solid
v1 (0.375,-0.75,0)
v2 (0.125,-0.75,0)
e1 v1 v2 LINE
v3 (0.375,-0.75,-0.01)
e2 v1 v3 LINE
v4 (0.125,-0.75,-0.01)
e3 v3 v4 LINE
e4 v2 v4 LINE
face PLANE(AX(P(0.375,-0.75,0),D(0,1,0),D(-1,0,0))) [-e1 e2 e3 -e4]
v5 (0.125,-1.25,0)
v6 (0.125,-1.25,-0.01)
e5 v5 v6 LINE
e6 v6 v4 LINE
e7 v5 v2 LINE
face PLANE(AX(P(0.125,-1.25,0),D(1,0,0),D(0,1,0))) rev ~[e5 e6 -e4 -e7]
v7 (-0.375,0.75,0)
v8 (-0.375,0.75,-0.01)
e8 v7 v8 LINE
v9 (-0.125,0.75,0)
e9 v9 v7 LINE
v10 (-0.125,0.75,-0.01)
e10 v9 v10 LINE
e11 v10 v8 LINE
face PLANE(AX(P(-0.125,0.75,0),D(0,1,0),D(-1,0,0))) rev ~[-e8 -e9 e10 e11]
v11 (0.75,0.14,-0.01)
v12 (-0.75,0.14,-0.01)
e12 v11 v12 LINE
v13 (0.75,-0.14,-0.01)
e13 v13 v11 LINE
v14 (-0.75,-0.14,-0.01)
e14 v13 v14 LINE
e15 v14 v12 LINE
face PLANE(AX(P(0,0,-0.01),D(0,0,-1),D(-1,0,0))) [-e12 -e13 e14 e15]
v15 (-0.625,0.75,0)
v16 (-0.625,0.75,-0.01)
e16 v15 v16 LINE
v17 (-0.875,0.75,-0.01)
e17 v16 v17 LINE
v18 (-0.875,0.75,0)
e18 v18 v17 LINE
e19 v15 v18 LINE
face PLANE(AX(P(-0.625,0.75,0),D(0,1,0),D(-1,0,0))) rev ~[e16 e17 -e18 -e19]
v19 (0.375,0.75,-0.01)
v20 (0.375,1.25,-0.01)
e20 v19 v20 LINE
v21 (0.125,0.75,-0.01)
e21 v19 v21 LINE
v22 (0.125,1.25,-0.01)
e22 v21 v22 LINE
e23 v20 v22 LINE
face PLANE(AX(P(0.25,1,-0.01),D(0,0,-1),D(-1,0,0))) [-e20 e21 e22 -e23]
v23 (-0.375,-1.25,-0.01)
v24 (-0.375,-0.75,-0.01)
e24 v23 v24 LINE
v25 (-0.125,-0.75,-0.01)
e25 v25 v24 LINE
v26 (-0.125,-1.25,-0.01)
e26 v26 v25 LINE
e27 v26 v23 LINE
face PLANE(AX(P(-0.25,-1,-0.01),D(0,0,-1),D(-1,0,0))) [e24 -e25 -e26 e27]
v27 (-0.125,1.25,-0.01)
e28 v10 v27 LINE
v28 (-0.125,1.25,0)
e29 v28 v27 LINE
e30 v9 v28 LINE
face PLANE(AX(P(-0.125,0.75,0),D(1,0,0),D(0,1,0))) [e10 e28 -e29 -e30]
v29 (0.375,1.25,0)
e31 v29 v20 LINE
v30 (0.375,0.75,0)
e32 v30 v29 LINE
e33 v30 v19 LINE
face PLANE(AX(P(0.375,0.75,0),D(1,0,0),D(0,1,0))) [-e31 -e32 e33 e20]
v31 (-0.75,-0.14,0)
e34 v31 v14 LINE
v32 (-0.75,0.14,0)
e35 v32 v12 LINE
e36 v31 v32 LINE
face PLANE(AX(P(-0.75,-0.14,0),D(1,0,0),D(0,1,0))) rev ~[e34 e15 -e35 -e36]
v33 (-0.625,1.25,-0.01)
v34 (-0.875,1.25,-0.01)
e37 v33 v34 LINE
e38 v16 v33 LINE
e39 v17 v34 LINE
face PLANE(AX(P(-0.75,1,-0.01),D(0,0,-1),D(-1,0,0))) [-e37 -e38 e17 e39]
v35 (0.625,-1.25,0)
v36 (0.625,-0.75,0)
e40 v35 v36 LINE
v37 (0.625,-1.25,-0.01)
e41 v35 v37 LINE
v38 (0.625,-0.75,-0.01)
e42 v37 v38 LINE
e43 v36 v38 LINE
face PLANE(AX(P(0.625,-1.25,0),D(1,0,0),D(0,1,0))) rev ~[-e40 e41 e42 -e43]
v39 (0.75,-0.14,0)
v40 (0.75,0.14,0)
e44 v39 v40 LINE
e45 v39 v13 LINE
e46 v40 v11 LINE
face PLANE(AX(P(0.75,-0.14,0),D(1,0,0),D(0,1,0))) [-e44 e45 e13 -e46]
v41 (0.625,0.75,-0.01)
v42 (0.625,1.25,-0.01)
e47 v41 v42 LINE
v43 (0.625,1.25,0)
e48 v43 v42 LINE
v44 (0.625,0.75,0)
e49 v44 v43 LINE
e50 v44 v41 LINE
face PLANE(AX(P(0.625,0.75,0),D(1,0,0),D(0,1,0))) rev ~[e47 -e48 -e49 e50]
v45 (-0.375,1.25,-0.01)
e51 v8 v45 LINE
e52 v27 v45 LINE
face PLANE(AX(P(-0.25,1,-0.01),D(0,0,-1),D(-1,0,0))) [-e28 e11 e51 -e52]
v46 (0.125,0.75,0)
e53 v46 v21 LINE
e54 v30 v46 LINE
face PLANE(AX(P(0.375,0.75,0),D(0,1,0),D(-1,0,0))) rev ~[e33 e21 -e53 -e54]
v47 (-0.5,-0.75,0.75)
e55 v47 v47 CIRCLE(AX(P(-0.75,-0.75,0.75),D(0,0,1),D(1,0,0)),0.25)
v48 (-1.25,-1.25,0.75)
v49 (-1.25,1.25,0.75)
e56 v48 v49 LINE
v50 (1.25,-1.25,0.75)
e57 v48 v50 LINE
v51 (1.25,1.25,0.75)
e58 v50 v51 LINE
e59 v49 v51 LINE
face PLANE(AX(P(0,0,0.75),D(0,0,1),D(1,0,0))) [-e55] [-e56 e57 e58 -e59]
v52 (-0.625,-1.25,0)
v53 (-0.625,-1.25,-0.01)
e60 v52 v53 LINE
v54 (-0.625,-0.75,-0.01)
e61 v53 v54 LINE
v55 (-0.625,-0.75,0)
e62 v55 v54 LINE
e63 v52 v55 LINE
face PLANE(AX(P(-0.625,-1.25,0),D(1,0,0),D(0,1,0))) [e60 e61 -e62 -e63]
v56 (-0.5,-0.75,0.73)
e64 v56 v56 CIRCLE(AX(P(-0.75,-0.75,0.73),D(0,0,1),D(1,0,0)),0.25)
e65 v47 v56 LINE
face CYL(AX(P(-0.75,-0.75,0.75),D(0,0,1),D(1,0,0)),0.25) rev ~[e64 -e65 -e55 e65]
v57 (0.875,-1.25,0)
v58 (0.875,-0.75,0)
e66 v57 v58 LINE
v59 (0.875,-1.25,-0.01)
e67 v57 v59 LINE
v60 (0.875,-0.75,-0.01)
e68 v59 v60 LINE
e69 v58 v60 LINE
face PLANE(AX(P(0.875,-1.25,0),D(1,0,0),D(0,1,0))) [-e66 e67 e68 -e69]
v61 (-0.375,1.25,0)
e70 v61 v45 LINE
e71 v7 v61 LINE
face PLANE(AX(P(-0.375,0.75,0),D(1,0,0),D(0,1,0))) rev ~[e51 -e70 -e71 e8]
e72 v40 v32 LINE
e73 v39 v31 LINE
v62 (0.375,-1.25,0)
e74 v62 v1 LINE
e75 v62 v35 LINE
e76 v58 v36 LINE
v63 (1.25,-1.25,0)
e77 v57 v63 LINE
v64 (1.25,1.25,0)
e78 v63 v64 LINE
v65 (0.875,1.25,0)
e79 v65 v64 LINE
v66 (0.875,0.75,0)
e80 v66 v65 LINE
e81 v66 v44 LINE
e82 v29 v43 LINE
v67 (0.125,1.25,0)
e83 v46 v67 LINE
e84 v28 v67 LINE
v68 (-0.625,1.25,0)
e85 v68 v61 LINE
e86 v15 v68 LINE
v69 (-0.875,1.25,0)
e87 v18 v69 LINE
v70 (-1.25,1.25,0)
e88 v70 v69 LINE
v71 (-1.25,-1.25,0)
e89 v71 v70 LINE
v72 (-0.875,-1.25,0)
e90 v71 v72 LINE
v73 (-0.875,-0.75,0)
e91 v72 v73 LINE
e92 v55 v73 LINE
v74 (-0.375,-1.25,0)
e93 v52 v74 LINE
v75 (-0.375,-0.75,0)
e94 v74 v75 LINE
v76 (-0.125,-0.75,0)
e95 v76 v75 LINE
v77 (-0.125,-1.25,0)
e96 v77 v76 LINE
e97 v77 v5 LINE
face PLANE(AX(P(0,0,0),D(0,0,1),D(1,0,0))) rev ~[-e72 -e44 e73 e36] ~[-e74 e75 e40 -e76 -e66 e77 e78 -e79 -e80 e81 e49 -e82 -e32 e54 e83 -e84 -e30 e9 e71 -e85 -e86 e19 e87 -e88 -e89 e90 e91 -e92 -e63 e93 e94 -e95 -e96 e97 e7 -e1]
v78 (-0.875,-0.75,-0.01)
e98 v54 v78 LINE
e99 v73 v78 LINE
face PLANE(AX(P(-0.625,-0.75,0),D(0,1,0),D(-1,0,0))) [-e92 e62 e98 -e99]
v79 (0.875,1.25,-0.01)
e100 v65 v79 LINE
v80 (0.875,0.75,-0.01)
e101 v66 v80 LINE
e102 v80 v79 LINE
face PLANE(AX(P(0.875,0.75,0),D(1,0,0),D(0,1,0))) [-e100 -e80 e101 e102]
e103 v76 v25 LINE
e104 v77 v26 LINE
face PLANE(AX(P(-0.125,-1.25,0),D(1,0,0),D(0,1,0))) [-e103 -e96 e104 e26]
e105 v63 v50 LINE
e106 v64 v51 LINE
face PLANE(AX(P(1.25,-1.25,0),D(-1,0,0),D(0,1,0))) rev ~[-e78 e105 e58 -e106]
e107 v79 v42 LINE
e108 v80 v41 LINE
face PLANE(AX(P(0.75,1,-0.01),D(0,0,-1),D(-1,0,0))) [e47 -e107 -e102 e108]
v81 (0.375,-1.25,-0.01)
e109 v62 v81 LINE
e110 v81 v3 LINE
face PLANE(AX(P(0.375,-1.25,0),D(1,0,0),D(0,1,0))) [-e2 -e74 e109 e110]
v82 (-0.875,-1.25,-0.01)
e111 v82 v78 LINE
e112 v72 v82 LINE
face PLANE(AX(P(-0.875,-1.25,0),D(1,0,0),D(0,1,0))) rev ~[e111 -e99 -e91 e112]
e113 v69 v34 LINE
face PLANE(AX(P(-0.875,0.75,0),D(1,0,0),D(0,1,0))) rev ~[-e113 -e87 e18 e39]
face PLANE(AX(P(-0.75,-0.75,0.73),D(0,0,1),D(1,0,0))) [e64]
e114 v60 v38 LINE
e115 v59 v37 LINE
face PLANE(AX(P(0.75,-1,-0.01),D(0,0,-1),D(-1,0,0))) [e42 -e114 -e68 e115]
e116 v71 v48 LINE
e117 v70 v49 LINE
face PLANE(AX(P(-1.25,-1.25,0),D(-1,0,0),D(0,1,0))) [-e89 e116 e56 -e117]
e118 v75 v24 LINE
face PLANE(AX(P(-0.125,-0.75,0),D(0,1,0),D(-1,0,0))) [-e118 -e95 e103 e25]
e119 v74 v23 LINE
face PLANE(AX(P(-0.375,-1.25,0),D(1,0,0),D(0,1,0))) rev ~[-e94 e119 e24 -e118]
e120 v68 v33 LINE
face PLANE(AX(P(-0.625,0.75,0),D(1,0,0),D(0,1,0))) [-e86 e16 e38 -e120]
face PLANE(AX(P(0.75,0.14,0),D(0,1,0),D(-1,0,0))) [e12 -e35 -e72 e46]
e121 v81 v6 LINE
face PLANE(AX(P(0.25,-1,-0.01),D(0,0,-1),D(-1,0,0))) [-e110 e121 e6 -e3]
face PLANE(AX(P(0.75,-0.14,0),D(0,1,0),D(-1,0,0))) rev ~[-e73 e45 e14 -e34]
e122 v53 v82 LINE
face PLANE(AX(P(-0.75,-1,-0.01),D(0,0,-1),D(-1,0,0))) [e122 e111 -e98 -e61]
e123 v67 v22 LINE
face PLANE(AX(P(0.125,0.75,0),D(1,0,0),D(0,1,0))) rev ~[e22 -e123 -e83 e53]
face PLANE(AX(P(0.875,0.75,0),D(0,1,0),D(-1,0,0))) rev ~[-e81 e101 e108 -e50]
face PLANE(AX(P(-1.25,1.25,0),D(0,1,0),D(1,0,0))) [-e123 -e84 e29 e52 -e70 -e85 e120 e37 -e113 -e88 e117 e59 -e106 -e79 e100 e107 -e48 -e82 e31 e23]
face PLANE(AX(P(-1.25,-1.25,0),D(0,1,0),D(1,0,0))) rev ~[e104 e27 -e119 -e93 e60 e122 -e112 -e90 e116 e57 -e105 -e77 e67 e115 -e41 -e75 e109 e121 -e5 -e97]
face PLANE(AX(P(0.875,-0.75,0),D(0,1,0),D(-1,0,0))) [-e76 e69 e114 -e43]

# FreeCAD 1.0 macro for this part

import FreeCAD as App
import Part
import Sketcher


def add_polygon(sketch, points):
    """Adds a closed chain of lines whose ends are joined by coincident constraints."""
    first, n = sketch.GeometryCount, len(points)
    for a, b in zip(points, points[1:] + points[:1]):
        sketch.addGeometry(Part.LineSegment(App.Vector(*a, 0), App.Vector(*b, 0)), False)
    for i in range(n):
        sketch.addConstraint(Sketcher.Constraint("Coincident", first + i, 2, first + (i + 1) % n, 1))

doc = App.newDocument("Part")
body = doc.addObject("PartDesign::Body", "Body")

# Sketch on XY plane
sketch1 = doc.addObject("Sketcher::SketchObject", "Sketch")
body.addObject(sketch1)
sketch1.AttachmentSupport = (doc.XY_Plane, [""])
sketch1.MapMode = "FlatFace"
add_polygon(sketch1, [(-1.2, 1.2), (-1.2, -1.2), (1.2, -1.2), (1.2, 1.2)])  # lines 0-3
sketch1.addConstraint([
    Sketcher.Constraint("Vertical", 0),
    Sketcher.Constraint("Horizontal", 1),
    Sketcher.Constraint("Vertical", 2),
    Sketcher.Constraint("Horizontal", 3),
    Sketcher.Constraint("Symmetric", 0, 2, 2, 2, -1, 1),
    Sketcher.Constraint("Equal", 3, 0),
    Sketcher.Constraint("DistanceX", 1, 1, 1, 2, 2.5),
])
pad1 = doc.addObject("PartDesign::Pad", "Pad")
body.addObject(pad1)
pad1.Profile = sketch1
pad1.Length = 0.75

# Sketch on XY plane
sketch2 = doc.addObject("Sketcher::SketchObject", "Sketch001")
body.addObject(sketch2)
sketch2.AttachmentSupport = (doc.XY_Plane, [""])
sketch2.MapMode = "FlatFace"
sketch2.AttachmentOffset = App.Placement(App.Vector(0, 0, 0.75), App.Rotation())
sketch2.addGeometry(Part.Circle(App.Vector(-0.75, -0.75, 0), App.Vector(0, 0, 1), 0.25), False)
sketch2.addConstraint([
    Sketcher.Constraint("Diameter", 0, 0.5),
    Sketcher.Constraint("DistanceX", 0, 3, -1, 1, 0.75),
    Sketcher.Constraint("DistanceY", 0, 3, -1, 1, 0.75),
])
pocket1 = doc.addObject("PartDesign::Pocket", "Pocket")
body.addObject(pocket1)
pocket1.Profile = sketch2
pocket1.Length = 0.02

# Sketch on XY plane
sketch3 = doc.addObject("Sketcher::SketchObject", "Sketch002")
body.addObject(sketch3)
sketch3.AttachmentSupport = (doc.XY_Plane, [""])
sketch3.MapMode = "FlatFace"
add_polygon(sketch3, [(-0.62, -0.75), (-0.62, -1.25), (-0.88, -1.25), (-0.88, -0.75)])  # lines 0-3
add_polygon(sketch3, [(-0.12, -0.75), (-0.12, -1.25), (-0.38, -1.25), (-0.38, -0.75)])  # lines 4-7
add_polygon(sketch3, [(0.38, -0.75), (0.38, -1.25), (0.12, -1.25), (0.12, -0.75)])  # lines 8-11
add_polygon(sketch3, [(0.88, -0.75), (0.88, -1.25), (0.62, -1.25), (0.62, -0.75)])  # lines 12-15
add_polygon(sketch3, [(0.88, 1.25), (0.88, 0.75), (0.62, 0.75), (0.62, 1.25)])  # lines 16-19
add_polygon(sketch3, [(0.38, 1.25), (0.38, 0.75), (0.12, 0.75), (0.12, 1.25)])  # lines 20-23
add_polygon(sketch3, [(-0.12, 1.25), (-0.12, 0.75), (-0.38, 0.75), (-0.38, 1.25)])  # lines 24-27
add_polygon(sketch3, [(-0.62, 1.25), (-0.62, 0.75), (-0.88, 0.75), (-0.88, 1.25)])  # lines 28-31
add_polygon(sketch3, [(0.75, 0.14), (0.75, -0.14), (-0.75, -0.14), (-0.75, 0.14)])  # lines 32-35
sketch3.addConstraint([
    Sketcher.Constraint("Vertical", 0),
    Sketcher.Constraint("Horizontal", 1),
    Sketcher.Constraint("Vertical", 2),
    Sketcher.Constraint("Horizontal", 3),
    Sketcher.Constraint("Vertical", 4),
    Sketcher.Constraint("Horizontal", 5),
    Sketcher.Constraint("Vertical", 6),
    Sketcher.Constraint("Horizontal", 7),
    Sketcher.Constraint("Vertical", 8),
    Sketcher.Constraint("Horizontal", 9),
    Sketcher.Constraint("Vertical", 10),
    Sketcher.Constraint("Horizontal", 11),
    Sketcher.Constraint("Vertical", 12),
    Sketcher.Constraint("Horizontal", 13),
    Sketcher.Constraint("Vertical", 14),
    Sketcher.Constraint("Horizontal", 15),
    Sketcher.Constraint("Vertical", 16),
    Sketcher.Constraint("Horizontal", 17),
    Sketcher.Constraint("Vertical", 18),
    Sketcher.Constraint("Horizontal", 19),
    Sketcher.Constraint("Vertical", 20),
    Sketcher.Constraint("Horizontal", 21),
    Sketcher.Constraint("Vertical", 22),
    Sketcher.Constraint("Horizontal", 23),
    Sketcher.Constraint("Vertical", 24),
    Sketcher.Constraint("Horizontal", 25),
    Sketcher.Constraint("Vertical", 26),
    Sketcher.Constraint("Horizontal", 27),
    Sketcher.Constraint("Vertical", 28),
    Sketcher.Constraint("Horizontal", 29),
    Sketcher.Constraint("Vertical", 30),
    Sketcher.Constraint("Horizontal", 31),
    Sketcher.Constraint("Vertical", 32),
    Sketcher.Constraint("Horizontal", 33),
    Sketcher.Constraint("Vertical", 34),
    Sketcher.Constraint("Horizontal", 35),
    Sketcher.Constraint("Symmetric", 2, 2, 16, 2, -1, 1),
    Sketcher.Constraint("Symmetric", 0, 2, 18, 2, -1, 1),
    Sketcher.Constraint("Symmetric", 6, 2, 20, 2, -1, 1),
    Sketcher.Constraint("Symmetric", 4, 2, 22, 2, -1, 1),
    Sketcher.Constraint("Symmetric", 10, 2, 24, 2, -1, 1),
    Sketcher.Constraint("Symmetric", 8, 2, 26, 2, -1, 1),
    Sketcher.Constraint("Symmetric", 14, 2, 28, 2, -1, 1),
    Sketcher.Constraint("Symmetric", 12, 2, 30, 2, -1, 1),
    Sketcher.Constraint("Symmetric", 32, 2, 34, 2, -1, 1),
    Sketcher.Constraint("Symmetric", 5, 2, 8, 2, -2),
    Sketcher.Constraint("Symmetric", 7, 2, 10, 2, -2),
    Sketcher.Constraint("Symmetric", 1, 2, 12, 2, -2),
    Sketcher.Constraint("Symmetric", 3, 2, 14, 2, -2),
    Sketcher.Constraint("Horizontal", 1, 2, 4, 2),
    Sketcher.Constraint("Horizontal", 3, 2, 6, 2),
    Sketcher.Constraint("Equal", 3, 5),
    Sketcher.Constraint("DistanceX", 33, 2, 33, 1, 1.5),
    Sketcher.Constraint("DistanceY", 0, 2, 0, 1, 0.5),
    Sketcher.Constraint("DistanceX", 0, 2, 8, 2, 1.0),
    Sketcher.Constraint("DistanceY", 14, 2, 18, 2, 2.0),
    Sketcher.Constraint("DistanceX", 1, 2, 1, 1, 0.25),
    Sketcher.Constraint("DistanceY", 32, 2, 32, 1, 0.28),
    Sketcher.Constraint("DistanceX", 0, 2, 4, 2, 0.5),
])
pad2 = doc.addObject("PartDesign::Pad", "Pad001")
body.addObject(pad2)
pad2.Profile = sketch3
pad2.Length = 0.01
pad2.Reversed = True

doc.recompute()
